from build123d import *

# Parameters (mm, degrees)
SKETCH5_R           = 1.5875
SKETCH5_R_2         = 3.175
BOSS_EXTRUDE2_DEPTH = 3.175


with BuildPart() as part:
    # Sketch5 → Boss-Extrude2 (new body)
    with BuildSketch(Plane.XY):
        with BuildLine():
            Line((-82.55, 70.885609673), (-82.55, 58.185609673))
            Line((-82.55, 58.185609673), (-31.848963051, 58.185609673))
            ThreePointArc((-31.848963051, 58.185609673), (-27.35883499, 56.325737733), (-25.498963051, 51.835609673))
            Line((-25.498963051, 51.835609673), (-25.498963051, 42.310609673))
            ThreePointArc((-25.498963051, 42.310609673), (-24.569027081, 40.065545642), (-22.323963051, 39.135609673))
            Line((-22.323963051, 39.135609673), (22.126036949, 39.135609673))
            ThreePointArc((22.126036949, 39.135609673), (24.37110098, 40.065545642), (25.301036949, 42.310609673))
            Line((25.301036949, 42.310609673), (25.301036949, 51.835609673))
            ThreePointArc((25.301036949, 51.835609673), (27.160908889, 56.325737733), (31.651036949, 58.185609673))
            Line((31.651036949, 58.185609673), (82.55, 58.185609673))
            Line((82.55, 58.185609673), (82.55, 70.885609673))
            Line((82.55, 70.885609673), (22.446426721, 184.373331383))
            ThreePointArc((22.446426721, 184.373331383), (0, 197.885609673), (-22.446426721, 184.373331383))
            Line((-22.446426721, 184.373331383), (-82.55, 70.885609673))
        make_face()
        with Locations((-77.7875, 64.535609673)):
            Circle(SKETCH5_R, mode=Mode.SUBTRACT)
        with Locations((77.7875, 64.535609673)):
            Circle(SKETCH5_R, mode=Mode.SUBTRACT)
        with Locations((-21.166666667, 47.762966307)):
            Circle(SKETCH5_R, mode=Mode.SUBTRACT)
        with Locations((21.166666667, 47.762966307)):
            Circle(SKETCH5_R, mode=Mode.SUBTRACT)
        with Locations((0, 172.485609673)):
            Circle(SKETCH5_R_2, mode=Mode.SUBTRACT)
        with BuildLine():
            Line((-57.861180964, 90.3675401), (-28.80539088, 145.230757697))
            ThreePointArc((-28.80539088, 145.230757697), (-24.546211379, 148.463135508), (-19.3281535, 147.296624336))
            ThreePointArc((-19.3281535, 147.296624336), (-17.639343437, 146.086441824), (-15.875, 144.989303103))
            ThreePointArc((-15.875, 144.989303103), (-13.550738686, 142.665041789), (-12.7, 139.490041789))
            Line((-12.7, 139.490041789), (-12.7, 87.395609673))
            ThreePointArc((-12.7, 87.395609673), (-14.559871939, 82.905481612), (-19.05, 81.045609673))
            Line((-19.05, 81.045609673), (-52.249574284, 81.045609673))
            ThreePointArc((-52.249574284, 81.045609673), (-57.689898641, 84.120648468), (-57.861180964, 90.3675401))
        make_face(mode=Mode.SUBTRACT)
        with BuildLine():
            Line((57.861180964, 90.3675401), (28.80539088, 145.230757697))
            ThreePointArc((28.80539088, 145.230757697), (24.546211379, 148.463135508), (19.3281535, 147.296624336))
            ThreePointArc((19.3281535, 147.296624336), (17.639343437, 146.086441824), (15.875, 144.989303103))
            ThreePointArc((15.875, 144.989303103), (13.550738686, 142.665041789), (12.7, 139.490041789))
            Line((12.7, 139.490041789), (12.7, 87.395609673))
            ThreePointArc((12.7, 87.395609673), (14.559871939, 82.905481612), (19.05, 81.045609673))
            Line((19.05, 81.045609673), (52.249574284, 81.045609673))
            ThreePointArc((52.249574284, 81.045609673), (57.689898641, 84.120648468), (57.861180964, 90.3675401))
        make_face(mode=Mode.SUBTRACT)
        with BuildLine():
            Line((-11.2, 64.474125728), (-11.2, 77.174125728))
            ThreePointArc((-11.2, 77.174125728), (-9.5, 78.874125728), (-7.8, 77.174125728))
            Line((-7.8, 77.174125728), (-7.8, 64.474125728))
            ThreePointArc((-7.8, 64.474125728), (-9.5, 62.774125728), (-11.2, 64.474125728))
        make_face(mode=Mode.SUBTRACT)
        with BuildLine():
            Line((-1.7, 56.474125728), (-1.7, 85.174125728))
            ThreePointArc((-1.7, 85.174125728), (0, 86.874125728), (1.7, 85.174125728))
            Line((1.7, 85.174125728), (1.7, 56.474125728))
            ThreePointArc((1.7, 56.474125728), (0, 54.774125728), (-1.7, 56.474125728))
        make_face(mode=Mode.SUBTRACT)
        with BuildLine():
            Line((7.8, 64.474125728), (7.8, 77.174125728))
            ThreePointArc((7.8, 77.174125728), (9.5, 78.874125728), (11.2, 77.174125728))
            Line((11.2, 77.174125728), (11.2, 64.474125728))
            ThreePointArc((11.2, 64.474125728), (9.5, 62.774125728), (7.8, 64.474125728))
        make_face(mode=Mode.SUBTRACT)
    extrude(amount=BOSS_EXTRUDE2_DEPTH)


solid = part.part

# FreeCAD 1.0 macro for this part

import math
import FreeCAD as App
import Part
import Sketcher
from FreeCAD import Vector
Q = App.Units.Quantity

doc = App.newDocument("Part")
body = doc.addObject("PartDesign::Body", "Body")

# Sketch on XY plane
sketch1 = body.newObject("Sketcher::SketchObject", "Sketch")
sketch1.AttachmentSupport = (doc.getObject("XY_Plane"), [""])
sketch1.MapMode = "FlatFace"
sketch1.addGeometry(Part.LineSegment(Vector(-82.5, 70.9, 0), Vector(-82.5, 58.2, 0)), False)
sketch1.addGeometry(Part.LineSegment(Vector(-82.5, 58.2, 0), Vector(-31.8, 58.2, 0)), False)
sketch1.addGeometry(Part.ArcOfCircle(Part.Circle(Vector(-31.8, 51.8, 0), Vector(0, 0, 1), 6.3), math.radians(0), math.radians(90)), False)
sketch1.addGeometry(Part.LineSegment(Vector(-25.5, 51.8, 0), Vector(-25.5, 42.3, 0)), False)
sketch1.addGeometry(Part.ArcOfCircle(Part.Circle(Vector(-22.3, 42.3, 0), Vector(0, 0, 1), 3.2), math.radians(180), math.radians(270)), False)
sketch1.addGeometry(Part.LineSegment(Vector(-22.3, 39.1, 0), Vector(22.1, 39.1, 0)), False)
sketch1.addGeometry(Part.ArcOfCircle(Part.Circle(Vector(22.1, 42.3, 0), Vector(0, 0, 1), 3.2), math.radians(-90), math.radians(0)), False)
sketch1.addGeometry(Part.LineSegment(Vector(25.3, 42.3, 0), Vector(25.3, 51.8, 0)), False)
sketch1.addGeometry(Part.ArcOfCircle(Part.Circle(Vector(31.7, 51.8, 0), Vector(0, 0, 1), 6.4), math.radians(90), math.radians(180)), False)
sketch1.addGeometry(Part.LineSegment(Vector(31.7, 58.2, 0), Vector(82.5, 58.2, 0)), False)
sketch1.addGeometry(Part.LineSegment(Vector(82.5, 58.2, 0), Vector(82.5, 70.9, 0)), False)
sketch1.addGeometry(Part.LineSegment(Vector(82.5, 70.9, 0), Vector(22.4, 184.4, 0)), False)
sketch1.addGeometry(Part.ArcOfCircle(Part.Circle(Vector(0, 172.5, 0), Vector(0, 0, 1), 25.4), math.radians(28), math.radians(152)), False)
sketch1.addGeometry(Part.LineSegment(Vector(-22.4, 184.4, 0), Vector(-82.5, 70.9, 0)), False)
sketch1.addGeometry(Part.Circle(Vector(-77.8, 64.5, 0), Vector(0, 0, 1), 1.6), False)
sketch1.addGeometry(Part.Circle(Vector(-21.2, 47.8, 0), Vector(0, 0, 1), 1.6), False)
sketch1.addGeometry(Part.ArcOfCircle(Part.Circle(Vector(-9.5, 64.5, 0), Vector(0, 0, 1), 1.7), math.radians(180), math.radians(360)), False)
sketch1.addGeometry(Part.LineSegment(Vector(-11.2, 64.5, 0), Vector(-11.2, 77.2, 0)), False)
sketch1.addGeometry(Part.ArcOfCircle(Part.Circle(Vector(-9.5, 77.2, 0), Vector(0, 0, 1), 1.7), math.radians(0), math.radians(180)), False)
sketch1.addGeometry(Part.LineSegment(Vector(-7.8, 77.2, 0), Vector(-7.8, 64.5, 0)), False)
sketch1.addGeometry(Part.Circle(Vector(21.2, 47.8, 0), Vector(0, 0, 1), 1.6), False)
sketch1.addGeometry(Part.ArcOfCircle(Part.Circle(Vector(0, 56.5, 0), Vector(0, 0, 1), 1.7), math.radians(180), math.radians(360)), False)
sketch1.addGeometry(Part.LineSegment(Vector(-1.7, 56.5, 0), Vector(-1.7, 85.2, 0)), False)
sketch1.addGeometry(Part.ArcOfCircle(Part.Circle(Vector(0, 85.2, 0), Vector(0, 0, 1), 1.7), math.radians(0), math.radians(180)), False)
sketch1.addGeometry(Part.LineSegment(Vector(1.7, 85.2, 0), Vector(1.7, 56.5, 0)), False)
sketch1.addGeometry(Part.ArcOfCircle(Part.Circle(Vector(9.5, 64.5, 0), Vector(0, 0, 1), 1.7), math.radians(180), math.radians(360)), False)
sketch1.addGeometry(Part.LineSegment(Vector(7.8, 64.5, 0), Vector(7.8, 77.2, 0)), False)
sketch1.addGeometry(Part.ArcOfCircle(Part.Circle(Vector(9.5, 77.2, 0), Vector(0, 0, 1), 1.7), math.radians(0), math.radians(180)), False)
sketch1.addGeometry(Part.LineSegment(Vector(11.2, 77.2, 0), Vector(11.2, 64.5, 0)), False)
sketch1.addGeometry(Part.Circle(Vector(77.8, 64.5, 0), Vector(0, 0, 1), 1.6), False)
sketch1.addGeometry(Part.ArcOfCircle(Part.Circle(Vector(-52.2, 87.4, 0), Vector(0, 0, 1), 6.3), math.radians(152), math.radians(270)), False)
sketch1.addGeometry(Part.LineSegment(Vector(-57.9, 90.4, 0), Vector(-28.8, 145.2, 0)), False)
sketch1.addGeometry(Part.ArcOfCircle(Part.Circle(Vector(-23.2, 142.3, 0), Vector(0, 0, 1), 6.3), math.radians(53), math.radians(152)), False)
sketch1.addGeometry(Part.ArcOfCircle(Part.Circle(Vector(0, 172.5, 0), Vector(0, 0, 1), 31.8), math.radians(-127.5), math.radians(-120)), False)
sketch1.addGeometry(Part.ArcOfCircle(Part.Circle(Vector(-19.1, 139.5, 0), Vector(0, 0, 1), 6.3), math.radians(0), math.radians(60)), False)
sketch1.addGeometry(Part.LineSegment(Vector(-12.7, 139.5, 0), Vector(-12.7, 87.4, 0)), False)
sketch1.addGeometry(Part.ArcOfCircle(Part.Circle(Vector(-19, 87.4, 0), Vector(0, 0, 1), 6.3), math.radians(-90), math.radians(0)), False)
sketch1.addGeometry(Part.LineSegment(Vector(-19.1, 81, 0), Vector(-52.2, 81, 0)), False)
sketch1.addGeometry(Part.LineSegment(Vector(28.8, 145.2, 0), Vector(57.9, 90.4, 0)), False)
sketch1.addGeometry(Part.ArcOfCircle(Part.Circle(Vector(52.2, 87.4, 0), Vector(0, 0, 1), 6.3), math.radians(-90), math.radians(28)), False)
sketch1.addGeometry(Part.LineSegment(Vector(52.2, 81, 0), Vector(19.1, 81, 0)), False)
sketch1.addGeometry(Part.ArcOfCircle(Part.Circle(Vector(19, 87.4, 0), Vector(0, 0, 1), 6.3), math.radians(180), math.radians(270)), False)
sketch1.addGeometry(Part.LineSegment(Vector(12.7, 87.4, 0), Vector(12.7, 139.5, 0)), False)
sketch1.addGeometry(Part.ArcOfCircle(Part.Circle(Vector(19.1, 139.5, 0), Vector(0, 0, 1), 6.3), math.radians(120), math.radians(180)), False)
sketch1.addGeometry(Part.ArcOfCircle(Part.Circle(Vector(0, 172.5, 0), Vector(0, 0, 1), 31.8), math.radians(-60), math.radians(-52.5)), False)
sketch1.addGeometry(Part.ArcOfCircle(Part.Circle(Vector(23.2, 142.3, 0), Vector(0, 0, 1), 6.3), math.radians(28), math.radians(127)), False)
sketch1.addGeometry(Part.Circle(Vector(0, 172.5, 0), Vector(0, 0, 1), 3.2), False)
sketch1.addConstraint(Sketcher.Constraint("Coincident", 0, 2, 1, 1))
sketch1.addConstraint(Sketcher.Constraint("Tangent", 1, 2, 2, 2))
sketch1.addConstraint(Sketcher.Constraint("Tangent", 2, 1, 3, 1))
sketch1.addConstraint(Sketcher.Constraint("Tangent", 3, 2, 4, 1))
sketch1.addConstraint(Sketcher.Constraint("Tangent", 4, 2, 5, 1))
sketch1.addConstraint(Sketcher.Constraint("Tangent", 5, 2, 6, 1))
sketch1.addConstraint(Sketcher.Constraint("Tangent", 6, 2, 7, 1))
sketch1.addConstraint(Sketcher.Constraint("Tangent", 7, 2, 8, 2))
sketch1.addConstraint(Sketcher.Constraint("Tangent", 8, 1, 9, 1))
sketch1.addConstraint(Sketcher.Constraint("Coincident", 9, 2, 10, 1))
sketch1.addConstraint(Sketcher.Constraint("Coincident", 10, 2, 11, 1))
sketch1.addConstraint(Sketcher.Constraint("Tangent", 11, 2, 12, 1))
sketch1.addConstraint(Sketcher.Constraint("Tangent", 12, 2, 13, 1))
sketch1.addConstraint(Sketcher.Constraint("Coincident", 13, 2, 0, 1))
sketch1.addConstraint(Sketcher.Constraint("Tangent", 16, 1, 17, 1))
sketch1.addConstraint(Sketcher.Constraint("Tangent", 17, 2, 18, 2))
sketch1.addConstraint(Sketcher.Constraint("Tangent", 18, 1, 19, 1))
sketch1.addConstraint(Sketcher.Constraint("Tangent", 19, 2, 16, 2))
sketch1.addConstraint(Sketcher.Constraint("Tangent", 21, 1, 22, 1))
sketch1.addConstraint(Sketcher.Constraint("Tangent", 22, 2, 23, 2))
sketch1.addConstraint(Sketcher.Constraint("Tangent", 23, 1, 24, 1))
sketch1.addConstraint(Sketcher.Constraint("Tangent", 24, 2, 21, 2))
sketch1.addConstraint(Sketcher.Constraint("Tangent", 25, 1, 26, 1))
sketch1.addConstraint(Sketcher.Constraint("Tangent", 26, 2, 27, 2))
sketch1.addConstraint(Sketcher.Constraint("Tangent", 27, 1, 28, 1))
sketch1.addConstraint(Sketcher.Constraint("Tangent", 28, 2, 25, 2))
sketch1.addConstraint(Sketcher.Constraint("Tangent", 30, 1, 31, 1))
sketch1.addConstraint(Sketcher.Constraint("Tangent", 31, 2, 32, 2))
sketch1.addConstraint(Sketcher.Constraint("Tangent", 32, 1, 33, 1))
sketch1.addConstraint(Sketcher.Constraint("Tangent", 33, 2, 34, 2))
sketch1.addConstraint(Sketcher.Constraint("Tangent", 34, 1, 35, 1))
sketch1.addConstraint(Sketcher.Constraint("Tangent", 35, 2, 36, 2))
sketch1.addConstraint(Sketcher.Constraint("Tangent", 36, 1, 37, 1))
sketch1.addConstraint(Sketcher.Constraint("Tangent", 37, 2, 30, 2))
sketch1.addConstraint(Sketcher.Constraint("Tangent", 38, 2, 39, 2))
sketch1.addConstraint(Sketcher.Constraint("Tangent", 39, 1, 40, 1))
sketch1.addConstraint(Sketcher.Constraint("Tangent", 40, 2, 41, 2))
sketch1.addConstraint(Sketcher.Constraint("Tangent", 41, 1, 42, 1))
sketch1.addConstraint(Sketcher.Constraint("Tangent", 42, 2, 43, 2))
sketch1.addConstraint(Sketcher.Constraint("Tangent", 43, 1, 44, 1))
sketch1.addConstraint(Sketcher.Constraint("Tangent", 44, 2, 45, 2))
sketch1.addConstraint(Sketcher.Constraint("Tangent", 45, 1, 38, 1))
sketch1.addConstraint(Sketcher.Constraint("Vertical", 0))
sketch1.addConstraint(Sketcher.Constraint("Horizontal", 1))
sketch1.addConstraint(Sketcher.Constraint("Vertical", 3))
sketch1.addConstraint(Sketcher.Constraint("Horizontal", 5))
sketch1.addConstraint(Sketcher.Constraint("Vertical", 7))
sketch1.addConstraint(Sketcher.Constraint("Horizontal", 9))
sketch1.addConstraint(Sketcher.Constraint("Vertical", 10))
sketch1.addConstraint(Sketcher.Constraint("Vertical", 17))
sketch1.addConstraint(Sketcher.Constraint("Vertical", 19))
sketch1.addConstraint(Sketcher.Constraint("Vertical", 22))
sketch1.addConstraint(Sketcher.Constraint("Vertical", 24))
sketch1.addConstraint(Sketcher.Constraint("Vertical", 26))
sketch1.addConstraint(Sketcher.Constraint("Vertical", 28))
sketch1.addConstraint(Sketcher.Constraint("Vertical", 35))
sketch1.addConstraint(Sketcher.Constraint("Horizontal", 37))
sketch1.addConstraint(Sketcher.Constraint("Horizontal", 40))
sketch1.addConstraint(Sketcher.Constraint("Vertical", 42))
sketch1.addConstraint(Sketcher.Constraint("Coincident", 33, 3, 12, 3))
sketch1.addConstraint(Sketcher.Constraint("Coincident", 44, 3, 12, 3))
sketch1.addConstraint(Sketcher.Constraint("Coincident", 46, 3, 12, 3))
sketch1.addConstraint(Sketcher.Constraint("Equal", 4, 6))
sketch1.addConstraint(Sketcher.Constraint("Equal", 2, 8))
sketch1.addConstraint(Sketcher.Constraint("Equal", 14, 15))
sketch1.addConstraint(Sketcher.Constraint("Equal", 15, 20))
sketch1.addConstraint(Sketcher.Constraint("Equal", 18, 21))
sketch1.addConstraint(Sketcher.Constraint("Equal", 23, 25))
sketch1.addConstraint(Sketcher.Constraint("Equal", 20, 29))
sketch1.addConstraint(Sketcher.Constraint("Equal", 8, 30))
sketch1.addConstraint(Sketcher.Constraint("Equal", 30, 32))
sketch1.addConstraint(Sketcher.Constraint("Equal", 32, 34))
sketch1.addConstraint(Sketcher.Constraint("Equal", 34, 36))
sketch1.addConstraint(Sketcher.Constraint("Equal", 36, 39))
sketch1.addConstraint(Sketcher.Constraint("Equal", 39, 41))
sketch1.addConstraint(Sketcher.Constraint("Equal", 41, 43))
sketch1.addConstraint(Sketcher.Constraint("Equal", 33, 44))
sketch1.addConstraint(Sketcher.Constraint("Equal", 43, 45))
sketch1.addConstraint(Sketcher.Constraint("Equal", 6, 46))
sketch1.addConstraint(Sketcher.Constraint("Symmetric", 15, 3, 20, 3, -2))
sketch1.addConstraint(Sketcher.Constraint("Symmetric", 16, 3, 25, 3, -2))
sketch1.addConstraint(Sketcher.Constraint("Symmetric", 14, 3, 29, 3, -2))
sketch1.addConstraint(Sketcher.Constraint("Symmetric", 30, 3, 39, 3, -2))
sketch1.addConstraint(Sketcher.Constraint("Symmetric", 34, 3, 43, 3, -2))
sketch1.addConstraint(Sketcher.Constraint("Symmetric", 0, 2, 9, 2, -2))
sketch1.addConstraint(Sketcher.Constraint("PointOnObject", 21, 3, -2))
sketch1.addConstraint(Sketcher.Constraint("Parallel", 13, 31))
sketch1.addConstraint(Sketcher.Constraint("Parallel", 11, 38))
sketch1.addConstraint(Sketcher.Constraint("Horizontal", 18, 3, 27, 3))
sketch1.addConstraint(Sketcher.Constraint("Horizontal", 32, 3, 45, 3))
sketch1.addConstraint(Sketcher.Constraint("Equal", 10, 17))
sketch1.addConstraint(Sketcher.Constraint("Radius", 12, Q("1 in")))
sketch1.addConstraint(Sketcher.Constraint("Diameter", 46, Q("0.25 in")))
sketch1.addConstraint(Sketcher.Constraint("Radius", 2, Q("0.25 in")))
sketch1.addConstraint(Sketcher.Constraint("Radius", 33, Q("1.25 in")))
sketch1.addConstraint(Sketcher.Constraint("Diameter", 14, Q("0.125 in")))
sketch1.addConstraint(Sketcher.Constraint("DistanceY", 0, 2, 0, 1, Q("0.5 in")))
sketch1.addConstraint(Sketcher.Constraint("DistanceX", 5, 1, 5, 2, Q("1.75 in")))
sketch1.addConstraint(Sketcher.Constraint("DistanceX", 34, 1, -1, 1, Q("0.5 in")))
sketch1.addConstraint(Sketcher.Constraint("DistanceY", 3, 2, 3, 1, Q("0.375 in")))
sketch1.addConstraint(Sketcher.Constraint("DistanceX", 0, 2, -1, 1, Q("3.25 in")))
sketch1.addConstraint(Sketcher.Constraint("Radius", 16, Q("1.7 mm")))
sketch1.addConstraint(Sketcher.Constraint("DistanceX", 14, 3, -1, 1, Q("3.0625 in")))
sketch1.addConstraint(Sketcher.Constraint("DistanceY", 22, 1, 22, 2, Q("28.7 mm")))
sketch1.addConstraint(Sketcher.Constraint("DistanceX", 16, 3, -1, 1, Q("9.5 mm")))
sketch1.addConstraint(Sketcher.Constraint("DistanceX", 1, 1, 1, 2, Q("50.701037 mm")))
sketch1.addConstraint(Sketcher.Constraint("DistanceX", 37, 2, 37, 1, Q("33.199574 mm")))
sketch1.addConstraint(Sketcher.Constraint("DistanceY", 35, 2, 35, 1, Q("52.094432 mm")))
sketch1.addConstraint(Sketcher.Constraint("DistanceY", -1, 1, 2, 3, Q("51.83561 mm")))
sketch1.addConstraint(Sketcher.Constraint("DistanceY", -1, 1, 12, 3, Q("172.48561 mm")))
sketch1.addConstraint(Sketcher.Constraint("DistanceY", -1, 1, 14, 3, Q("64.53561 mm")))
sketch1.addConstraint(Sketcher.Constraint("DistanceX", 15, 3, -1, 1, Q("21.166667 mm")))
sketch1.addConstraint(Sketcher.Constraint("DistanceY", -1, 1, 15, 3, Q("47.762966 mm")))
sketch1.addConstraint(Sketcher.Constraint("DistanceY", -1, 1, 16, 3, Q("64.474126 mm")))
sketch1.addConstraint(Sketcher.Constraint("DistanceY", -1, 1, 21, 3, Q("56.474126 mm")))
pad1 = body.newObject("PartDesign::Pad", "Pad")
pad1.Profile = sketch1
pad1.Length = Q("0.125 in")

doc.recompute()
